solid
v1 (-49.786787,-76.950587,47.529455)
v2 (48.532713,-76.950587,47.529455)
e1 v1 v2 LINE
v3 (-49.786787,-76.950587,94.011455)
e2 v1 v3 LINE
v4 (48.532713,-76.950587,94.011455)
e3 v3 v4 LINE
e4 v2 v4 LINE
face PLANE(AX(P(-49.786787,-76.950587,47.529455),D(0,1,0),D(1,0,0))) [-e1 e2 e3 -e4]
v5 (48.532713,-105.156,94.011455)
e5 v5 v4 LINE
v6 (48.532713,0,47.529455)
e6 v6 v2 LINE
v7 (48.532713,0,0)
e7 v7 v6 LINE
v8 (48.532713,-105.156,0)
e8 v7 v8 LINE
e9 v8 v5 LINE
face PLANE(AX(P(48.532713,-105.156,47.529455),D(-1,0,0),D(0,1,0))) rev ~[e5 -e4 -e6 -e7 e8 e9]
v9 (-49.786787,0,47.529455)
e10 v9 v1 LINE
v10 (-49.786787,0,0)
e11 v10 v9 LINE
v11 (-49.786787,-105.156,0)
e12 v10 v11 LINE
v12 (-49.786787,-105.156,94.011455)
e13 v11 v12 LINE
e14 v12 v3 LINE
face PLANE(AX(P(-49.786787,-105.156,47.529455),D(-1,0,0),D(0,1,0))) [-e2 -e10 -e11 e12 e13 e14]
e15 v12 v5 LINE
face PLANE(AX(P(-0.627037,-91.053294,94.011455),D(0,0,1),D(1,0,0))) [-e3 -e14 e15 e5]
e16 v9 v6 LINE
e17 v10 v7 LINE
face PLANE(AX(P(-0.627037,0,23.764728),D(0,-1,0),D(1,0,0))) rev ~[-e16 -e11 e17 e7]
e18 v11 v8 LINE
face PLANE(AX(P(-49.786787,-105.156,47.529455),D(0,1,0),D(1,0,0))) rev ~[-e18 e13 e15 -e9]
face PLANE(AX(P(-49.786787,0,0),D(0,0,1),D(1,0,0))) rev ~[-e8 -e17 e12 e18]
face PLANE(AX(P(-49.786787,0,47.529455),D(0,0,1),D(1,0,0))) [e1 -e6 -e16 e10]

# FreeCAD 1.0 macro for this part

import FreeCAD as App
import Part
import Sketcher
from FreeCAD import Vector
Q = App.Units.Quantity


def add_polygon(sketch, points):
    """Adds a closed chain of lines whose ends are joined by coincident constraints."""
    first, n = sketch.GeometryCount, len(points)
    for a, b in zip(points, points[1:] + points[:1]):
        sketch.addGeometry(Part.LineSegment(App.Vector(*a, 0), App.Vector(*b, 0)), False)
    for i in range(n):
        sketch.addConstraint(Sketcher.Constraint("Coincident", first + i, 2, first + (i + 1) % n, 1))

doc = App.newDocument("Part")
params = doc.addObject("Spreadsheet::Sheet", "Params")
for row, (alias, value) in enumerate([
    ("pad1_length", "4.14 in"),
    ("pad2_length", "1.83 in"),
], start=1):
    params.set(f"A{row}", alias)
    params.set(f"B{row}", "=" + value)
    params.setAlias(f"B{row}", alias)

body = doc.addObject("PartDesign::Body", "Body")

# Sketch on XZ plane
sketch1 = body.newObject("Sketcher::SketchObject", "Sketch")
sketch1.AttachmentSupport = (doc.getObject("XZ_Plane"), [""])
sketch1.MapMode = "FlatFace"
add_polygon(sketch1, [(-49.786787, 47.529455), (-49.786787, 0), (48.532713, 0), (48.532713, 47.529455)])  # lines 0-3
sketch1.addConstraint([
    Sketcher.Constraint("Vertical", 0),
    Sketcher.Constraint("Horizontal", 1),
    Sketcher.Constraint("Vertical", 2),
    Sketcher.Constraint("Horizontal", 3),
    Sketcher.Constraint("PointOnObject", 0, 2, -1),
    Sketcher.Constraint("DistanceX", 1, 1, 1, 2, Q("98.319501 mm")),
    Sketcher.Constraint("DistanceY", 0, 2, 0, 1, Q("47.529455 mm")),
    Sketcher.Constraint("DistanceX", 0, 2, -1, 1, Q("49.786787 mm")),
])
pad1 = body.newObject("PartDesign::Pad", "Pad")
pad1.Profile = sketch1
pad1.setExpression("Length", "Params.pad1_length")

# Sketch on XY plane
sketch2 = body.newObject("Sketcher::SketchObject", "Sketch001")
sketch2.AttachmentSupport = (doc.getObject("XY_Plane"), [""])
sketch2.MapMode = "FlatFace"
sketch2.AttachmentOffset = App.Placement(Vector(0, 0, 47.529455), App.Rotation())
add_polygon(sketch2, [(-49.786787, -76.950587), (-49.786787, -105.156), (48.532713, -105.156), (48.532713, -76.950587)])  # lines 0-3
sketch2.addConstraint([
    Sketcher.Constraint("Vertical", 0),
    Sketcher.Constraint("Horizontal", 1),
    Sketcher.Constraint("Vertical", 2),
    Sketcher.Constraint("Horizontal", 3),
    Sketcher.Constraint("DistanceY", 0, 2, -1, 1, Q("4.14 in")),
    Sketcher.Constraint("DistanceX", 1, 1, 1, 2, Q("98.319501 mm")),
    Sketcher.Constraint("DistanceY", 0, 2, 0, 1, Q("28.205413 mm")),
    Sketcher.Constraint("DistanceX", 0, 2, -1, 1, Q("49.786787 mm")),
])
pad2 = body.newObject("PartDesign::Pad", "Pad001")
pad2.Profile = sketch2
pad2.setExpression("Length", "Params.pad2_length")

doc.recompute()
